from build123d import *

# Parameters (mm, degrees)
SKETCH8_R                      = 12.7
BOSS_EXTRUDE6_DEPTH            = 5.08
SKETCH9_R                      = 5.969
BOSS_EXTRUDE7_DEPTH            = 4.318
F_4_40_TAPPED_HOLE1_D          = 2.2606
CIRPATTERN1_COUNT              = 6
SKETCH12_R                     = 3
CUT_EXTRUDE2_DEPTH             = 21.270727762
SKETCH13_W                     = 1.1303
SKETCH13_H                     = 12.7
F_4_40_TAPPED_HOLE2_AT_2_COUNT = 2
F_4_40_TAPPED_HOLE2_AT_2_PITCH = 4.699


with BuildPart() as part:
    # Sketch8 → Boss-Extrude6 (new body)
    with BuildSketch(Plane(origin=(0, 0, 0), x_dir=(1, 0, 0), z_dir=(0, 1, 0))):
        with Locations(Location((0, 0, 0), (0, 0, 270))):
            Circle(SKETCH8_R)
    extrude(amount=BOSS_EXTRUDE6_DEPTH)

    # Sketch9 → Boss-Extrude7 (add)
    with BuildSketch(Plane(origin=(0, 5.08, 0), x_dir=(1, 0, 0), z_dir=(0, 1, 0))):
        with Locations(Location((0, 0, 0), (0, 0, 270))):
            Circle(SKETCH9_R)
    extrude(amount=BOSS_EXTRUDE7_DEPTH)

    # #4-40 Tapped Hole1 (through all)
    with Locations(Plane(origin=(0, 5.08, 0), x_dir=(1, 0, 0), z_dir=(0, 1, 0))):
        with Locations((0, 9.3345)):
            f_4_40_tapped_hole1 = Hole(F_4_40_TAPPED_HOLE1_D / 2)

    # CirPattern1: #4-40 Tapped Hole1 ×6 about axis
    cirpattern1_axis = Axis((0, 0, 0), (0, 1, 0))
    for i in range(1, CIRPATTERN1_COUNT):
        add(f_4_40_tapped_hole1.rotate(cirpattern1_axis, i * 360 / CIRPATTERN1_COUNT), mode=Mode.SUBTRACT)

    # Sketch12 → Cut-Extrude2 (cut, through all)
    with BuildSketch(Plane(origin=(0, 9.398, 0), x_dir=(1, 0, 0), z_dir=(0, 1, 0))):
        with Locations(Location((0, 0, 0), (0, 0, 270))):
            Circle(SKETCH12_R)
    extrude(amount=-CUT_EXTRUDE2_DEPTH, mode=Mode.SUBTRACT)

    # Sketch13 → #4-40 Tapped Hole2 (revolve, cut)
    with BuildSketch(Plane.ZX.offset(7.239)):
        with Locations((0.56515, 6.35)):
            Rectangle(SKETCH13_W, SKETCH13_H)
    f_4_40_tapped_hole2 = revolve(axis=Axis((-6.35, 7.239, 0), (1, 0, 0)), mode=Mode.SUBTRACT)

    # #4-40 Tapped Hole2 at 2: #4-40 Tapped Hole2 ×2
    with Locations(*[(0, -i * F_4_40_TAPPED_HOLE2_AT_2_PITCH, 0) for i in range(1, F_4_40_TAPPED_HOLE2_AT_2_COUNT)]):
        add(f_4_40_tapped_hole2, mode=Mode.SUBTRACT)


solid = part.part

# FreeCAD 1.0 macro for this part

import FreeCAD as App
import Part
import Sketcher
Q = App.Units.Quantity


def add_polygon(sketch, points):
    """Adds a closed chain of lines whose ends are joined by coincident constraints."""
    first, n = sketch.GeometryCount, len(points)
    for a, b in zip(points, points[1:] + points[:1]):
        sketch.addGeometry(Part.LineSegment(App.Vector(*a, 0), App.Vector(*b, 0)), False)
    for i in range(n):
        sketch.addConstraint(Sketcher.Constraint("Coincident", first + i, 2, first + (i + 1) % n, 1))

doc = App.newDocument("Part")
params = doc.addObject("Spreadsheet::Sheet", "Params")
for row, (alias, value) in enumerate([
    ("sketch1_diameter", "1 in"),
    ("pad1_length", "0.2 in"),
    ("sketch2_diameter", "0.47 in"),
    ("pad2_length", "0.17 in"),
    ("sketch3_diameter", "0.089 in"),
    ("hole_diameter", "0.089 in"),
    ("sketch5_width", "0.5 in"),
    ("groove_angle", "360 deg"),
    ("linearpattern_pitch", "0.185 in"),
], start=1):
    params.set(f"A{row}", alias)
    params.set(f"B{row}", "=" + value)
    params.setAlias(f"B{row}", alias)

body = doc.addObject("PartDesign::Body", "Body")

sketch1 = body.newObject("Sketcher::SketchObject", "Sketch")
sketch1.AttachmentSupport = (doc.getObject("XZ_Plane"), [""])
sketch1.MapMode = "FlatFace"
sketch1.addGeometry(Part.Circle(App.Vector(0, 0, 0), App.Vector(0, 0, 1), 13), False)
sketch1.addConstraint([
    Sketcher.Constraint("Coincident", 0, 3, -1, 1),
    Sketcher.Constraint("Diameter", 0, Q("1 in")),
])
sketch1.setExpression("Constraints[1]", "Params.sketch1_diameter")
pad1 = body.newObject("PartDesign::Pad", "Pad")
pad1.Profile = sketch1
pad1.setExpression("Length", "Params.pad1_length")
pad1.Reversed = True

sketch2 = body.newObject("Sketcher::SketchObject", "Sketch001")
sketch2.AttachmentSupport = (doc.getObject("XZ_Plane"), [""])
sketch2.MapMode = "FlatFace"
sketch2.AttachmentOffset = App.Placement(App.Vector(0, 0, -0.2 * 25.4), App.Rotation())
sketch2.addGeometry(Part.Circle(App.Vector(0, 0, 0), App.Vector(0, 0, 1), 6), False)
sketch2.addConstraint([
    Sketcher.Constraint("Coincident", 0, 3, -1, 1),
    Sketcher.Constraint("Diameter", 0, Q("0.47 in")),
])
sketch2.setExpression("Constraints[1]", "Params.sketch2_diameter")
pad2 = body.newObject("PartDesign::Pad", "Pad001")
pad2.Profile = sketch2
pad2.setExpression("Length", "Params.pad2_length")
pad2.Reversed = True

sketch3 = body.newObject("Sketcher::SketchObject", "Sketch002")
sketch3.AttachmentSupport = (doc.getObject("XZ_Plane"), [""])
sketch3.MapMode = "FlatFace"
sketch3.AttachmentOffset = App.Placement(App.Vector(0, 0, -0.2 * 25.4), App.Rotation())
sketch3.addGeometry(Part.Circle(App.Vector(0, -9.3, 0), App.Vector(0, 0, 1), 1.1), False)
sketch3.addConstraint([
    Sketcher.Constraint("PointOnObject", 0, 3, -2),
    Sketcher.Constraint("Diameter", 0, Q("0.089 in")),
    Sketcher.Constraint("DistanceY", 0, 3, -1, 1, Q("0.3675 in")),
])
sketch3.setExpression("Constraints[1]", "Params.sketch3_diameter")
doc.recompute()
hole = body.newObject("PartDesign::Hole", "Hole")
hole.Profile = sketch3
hole.ThreadType = "None"
hole.setExpression("Diameter", "Params.hole_diameter")
hole.DepthType = "ThroughAll"
hole.Reversed = True
doc.recompute()

polarpattern = body.newObject("PartDesign::PolarPattern", "PolarPattern")
polarpattern.Originals = [hole]
polarpattern.Axis = (doc.getObject("Y_Axis"), [""])
polarpattern.Angle = 360
polarpattern.Occurrences = 6
body.Tip = polarpattern

sketch4 = body.newObject("Sketcher::SketchObject", "Sketch003")
sketch4.AttachmentSupport = (doc.getObject("XZ_Plane"), [""])
sketch4.MapMode = "FlatFace"
sketch4.AttachmentOffset = App.Placement(App.Vector(0, 0, -0.37 * 25.4), App.Rotation())
sketch4.addGeometry(Part.Circle(App.Vector(0, 0, 0), App.Vector(0, 0, 1), 3), False)
sketch4.addConstraint([
    Sketcher.Constraint("Coincident", 0, 3, -1, 1),
    Sketcher.Constraint("Diameter", 0, 6.0),
])
pocket1 = body.newObject("PartDesign::Pocket", "Pocket")
pocket1.Profile = sketch4
pocket1.Type = "ThroughAll"
pocket1.Reversed = True

sketch5 = body.newObject("Sketcher::SketchObject", "Sketch004")
sketch5.AttachmentSupport = (doc.getObject("XZ_Plane"), [""])
sketch5.MapMode = "FlatFace"
sketch5.AttachmentOffset = App.Placement(App.Vector(0, 0, -0.285 * 25.4), App.Rotation())
add_polygon(sketch5, [(12.7, 0), (0, 0), (0, 1.1), (12.7, 1.1)])
sketch5.addConstraint([
    Sketcher.Constraint("Horizontal", 0),
    Sketcher.Constraint("Vertical", 1),
    Sketcher.Constraint("Horizontal", 2),
    Sketcher.Constraint("Vertical", 3),
    Sketcher.Constraint("Coincident", 0, 2, -1, 1),
    Sketcher.Constraint("DistanceX", 0, 2, 0, 1, Q("0.5 in")),
    Sketcher.Constraint("DistanceY", 1, 1, 1, 2, Q("0.0445 in")),
])
sketch5.setExpression("Constraints[9]", "Params.sketch5_width")
groove = body.newObject("PartDesign::Groove", "Groove")
groove.Profile = sketch5
groove.ReferenceAxis = (sketch5, ["H_Axis"])
groove.setExpression("Angle", "Params.groove_angle")
doc.recompute()

linearpattern = body.newObject("PartDesign::LinearPattern", "LinearPattern")
linearpattern.Originals = [groove]
linearpattern.Direction = (doc.getObject("Y_Axis"), [""])
linearpattern.Mode = "offset"
linearpattern.setExpression("Offset", "Params.linearpattern_pitch")
linearpattern.Occurrences = 2
linearpattern.Reversed = True
body.Tip = linearpattern

doc.recompute()
